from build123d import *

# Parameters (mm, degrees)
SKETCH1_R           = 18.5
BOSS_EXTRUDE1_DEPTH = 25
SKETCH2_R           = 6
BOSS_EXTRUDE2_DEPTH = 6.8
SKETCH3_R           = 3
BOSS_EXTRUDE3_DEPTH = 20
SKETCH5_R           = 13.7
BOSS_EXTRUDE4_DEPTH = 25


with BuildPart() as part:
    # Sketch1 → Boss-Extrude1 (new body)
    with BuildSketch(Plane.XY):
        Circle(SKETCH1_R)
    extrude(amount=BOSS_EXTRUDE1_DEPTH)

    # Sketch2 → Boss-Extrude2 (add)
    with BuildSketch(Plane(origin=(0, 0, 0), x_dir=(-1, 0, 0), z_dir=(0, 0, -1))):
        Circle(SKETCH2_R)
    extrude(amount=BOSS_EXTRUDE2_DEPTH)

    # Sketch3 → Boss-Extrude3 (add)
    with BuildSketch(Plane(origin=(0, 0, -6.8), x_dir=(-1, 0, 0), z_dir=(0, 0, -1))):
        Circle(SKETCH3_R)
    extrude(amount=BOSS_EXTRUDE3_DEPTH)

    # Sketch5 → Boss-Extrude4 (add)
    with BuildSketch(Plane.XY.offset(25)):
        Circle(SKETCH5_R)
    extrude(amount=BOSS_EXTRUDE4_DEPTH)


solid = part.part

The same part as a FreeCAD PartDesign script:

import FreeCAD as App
import Part
import Sketcher

V = App.Vector

doc = App.newDocument("Part")
params = doc.addObject("Spreadsheet::Sheet", "Params")
for row, (alias, value) in enumerate([
    ("sketch1_diameter", "37 mm"),
    ("pad1_length", "25 mm"),
    ("sketch2_diameter", "12 mm"),
    ("pad2_length", "6.8 mm"),
    ("sketch3_diameter", "6 mm"),
    ("pad3_length", "20 mm"),
    ("sketch4_diameter", "27.4 mm"),
    ("pad4_length", "25 mm"),
], start=1):
    params.set(f"A{row}", alias)
    params.set(f"B{row}", "=" + value)
    params.setAlias(f"B{row}", alias)

body = doc.addObject("PartDesign::Body", "Body")

# Sketch on XY plane
sketch1 = body.newObject("Sketcher::SketchObject", "Sketch")
sketch1.AttachmentSupport = (doc.getObject("XY_Plane"), [""])
sketch1.MapMode = "FlatFace"
sketch1.addGeometry(Part.Circle(V(0, 0, 0), V(0, 0, 1), 18.5), False)
sketch1.addConstraint([
    Sketcher.Constraint("Coincident", 0, 3, -1, 1),
    Sketcher.Constraint("Diameter", 0, 37.0),
])
sketch1.setExpression("Constraints[1]", "Params.sketch1_diameter")
pad1 = body.newObject("PartDesign::Pad", "Pad")
pad1.Profile = sketch1
pad1.setExpression("Length", "Params.pad1_length")

# Sketch on XY plane
sketch2 = body.newObject("Sketcher::SketchObject", "Sketch001")
sketch2.AttachmentSupport = (doc.getObject("XY_Plane"), [""])
sketch2.MapMode = "FlatFace"
sketch2.addGeometry(Part.Circle(V(0, 0, 0), V(0, 0, 1), 6), False)
sketch2.addConstraint([
    Sketcher.Constraint("Coincident", 0, 3, -1, 1),
    Sketcher.Constraint("Diameter", 0, 12.0),
])
sketch2.setExpression("Constraints[1]", "Params.sketch2_diameter")
pad2 = body.newObject("PartDesign::Pad", "Pad001")
pad2.Profile = sketch2
pad2.setExpression("Length", "Params.pad2_length")
pad2.Reversed = True

# Sketch on XY plane
sketch3 = body.newObject("Sketcher::SketchObject", "Sketch002")
sketch3.AttachmentSupport = (doc.getObject("XY_Plane"), [""])
sketch3.MapMode = "FlatFace"
sketch3.AttachmentOffset = App.Placement(V(0, 0, -6.8), App.Rotation())
sketch3.addGeometry(Part.Circle(V(0, 0, 0), V(0, 0, 1), 3), False)
sketch3.addConstraint([
    Sketcher.Constraint("Coincident", 0, 3, -1, 1),
    Sketcher.Constraint("Diameter", 0, 6.0),
])
sketch3.setExpression("Constraints[1]", "Params.sketch3_diameter")
pad3 = body.newObject("PartDesign::Pad", "Pad002")
pad3.Profile = sketch3
pad3.setExpression("Length", "Params.pad3_length")
pad3.Reversed = True

# Sketch on XY plane
sketch4 = body.newObject("Sketcher::SketchObject", "Sketch003")
sketch4.AttachmentSupport = (doc.getObject("XY_Plane"), [""])
sketch4.MapMode = "FlatFace"
sketch4.AttachmentOffset = App.Placement(V(0, 0, 25), App.Rotation())
sketch4.addGeometry(Part.Circle(V(0, 0, 0), V(0, 0, 1), 13.7), False)
sketch4.addConstraint([
    Sketcher.Constraint("Coincident", 0, 3, -1, 1),
    Sketcher.Constraint("Diameter", 0, 27.4),
])
sketch4.setExpression("Constraints[1]", "Params.sketch4_diameter")
pad4 = body.newObject("PartDesign::Pad", "Pad003")
pad4.Profile = sketch4
pad4.setExpression("Length", "Params.pad4_length")

doc.recompute()
